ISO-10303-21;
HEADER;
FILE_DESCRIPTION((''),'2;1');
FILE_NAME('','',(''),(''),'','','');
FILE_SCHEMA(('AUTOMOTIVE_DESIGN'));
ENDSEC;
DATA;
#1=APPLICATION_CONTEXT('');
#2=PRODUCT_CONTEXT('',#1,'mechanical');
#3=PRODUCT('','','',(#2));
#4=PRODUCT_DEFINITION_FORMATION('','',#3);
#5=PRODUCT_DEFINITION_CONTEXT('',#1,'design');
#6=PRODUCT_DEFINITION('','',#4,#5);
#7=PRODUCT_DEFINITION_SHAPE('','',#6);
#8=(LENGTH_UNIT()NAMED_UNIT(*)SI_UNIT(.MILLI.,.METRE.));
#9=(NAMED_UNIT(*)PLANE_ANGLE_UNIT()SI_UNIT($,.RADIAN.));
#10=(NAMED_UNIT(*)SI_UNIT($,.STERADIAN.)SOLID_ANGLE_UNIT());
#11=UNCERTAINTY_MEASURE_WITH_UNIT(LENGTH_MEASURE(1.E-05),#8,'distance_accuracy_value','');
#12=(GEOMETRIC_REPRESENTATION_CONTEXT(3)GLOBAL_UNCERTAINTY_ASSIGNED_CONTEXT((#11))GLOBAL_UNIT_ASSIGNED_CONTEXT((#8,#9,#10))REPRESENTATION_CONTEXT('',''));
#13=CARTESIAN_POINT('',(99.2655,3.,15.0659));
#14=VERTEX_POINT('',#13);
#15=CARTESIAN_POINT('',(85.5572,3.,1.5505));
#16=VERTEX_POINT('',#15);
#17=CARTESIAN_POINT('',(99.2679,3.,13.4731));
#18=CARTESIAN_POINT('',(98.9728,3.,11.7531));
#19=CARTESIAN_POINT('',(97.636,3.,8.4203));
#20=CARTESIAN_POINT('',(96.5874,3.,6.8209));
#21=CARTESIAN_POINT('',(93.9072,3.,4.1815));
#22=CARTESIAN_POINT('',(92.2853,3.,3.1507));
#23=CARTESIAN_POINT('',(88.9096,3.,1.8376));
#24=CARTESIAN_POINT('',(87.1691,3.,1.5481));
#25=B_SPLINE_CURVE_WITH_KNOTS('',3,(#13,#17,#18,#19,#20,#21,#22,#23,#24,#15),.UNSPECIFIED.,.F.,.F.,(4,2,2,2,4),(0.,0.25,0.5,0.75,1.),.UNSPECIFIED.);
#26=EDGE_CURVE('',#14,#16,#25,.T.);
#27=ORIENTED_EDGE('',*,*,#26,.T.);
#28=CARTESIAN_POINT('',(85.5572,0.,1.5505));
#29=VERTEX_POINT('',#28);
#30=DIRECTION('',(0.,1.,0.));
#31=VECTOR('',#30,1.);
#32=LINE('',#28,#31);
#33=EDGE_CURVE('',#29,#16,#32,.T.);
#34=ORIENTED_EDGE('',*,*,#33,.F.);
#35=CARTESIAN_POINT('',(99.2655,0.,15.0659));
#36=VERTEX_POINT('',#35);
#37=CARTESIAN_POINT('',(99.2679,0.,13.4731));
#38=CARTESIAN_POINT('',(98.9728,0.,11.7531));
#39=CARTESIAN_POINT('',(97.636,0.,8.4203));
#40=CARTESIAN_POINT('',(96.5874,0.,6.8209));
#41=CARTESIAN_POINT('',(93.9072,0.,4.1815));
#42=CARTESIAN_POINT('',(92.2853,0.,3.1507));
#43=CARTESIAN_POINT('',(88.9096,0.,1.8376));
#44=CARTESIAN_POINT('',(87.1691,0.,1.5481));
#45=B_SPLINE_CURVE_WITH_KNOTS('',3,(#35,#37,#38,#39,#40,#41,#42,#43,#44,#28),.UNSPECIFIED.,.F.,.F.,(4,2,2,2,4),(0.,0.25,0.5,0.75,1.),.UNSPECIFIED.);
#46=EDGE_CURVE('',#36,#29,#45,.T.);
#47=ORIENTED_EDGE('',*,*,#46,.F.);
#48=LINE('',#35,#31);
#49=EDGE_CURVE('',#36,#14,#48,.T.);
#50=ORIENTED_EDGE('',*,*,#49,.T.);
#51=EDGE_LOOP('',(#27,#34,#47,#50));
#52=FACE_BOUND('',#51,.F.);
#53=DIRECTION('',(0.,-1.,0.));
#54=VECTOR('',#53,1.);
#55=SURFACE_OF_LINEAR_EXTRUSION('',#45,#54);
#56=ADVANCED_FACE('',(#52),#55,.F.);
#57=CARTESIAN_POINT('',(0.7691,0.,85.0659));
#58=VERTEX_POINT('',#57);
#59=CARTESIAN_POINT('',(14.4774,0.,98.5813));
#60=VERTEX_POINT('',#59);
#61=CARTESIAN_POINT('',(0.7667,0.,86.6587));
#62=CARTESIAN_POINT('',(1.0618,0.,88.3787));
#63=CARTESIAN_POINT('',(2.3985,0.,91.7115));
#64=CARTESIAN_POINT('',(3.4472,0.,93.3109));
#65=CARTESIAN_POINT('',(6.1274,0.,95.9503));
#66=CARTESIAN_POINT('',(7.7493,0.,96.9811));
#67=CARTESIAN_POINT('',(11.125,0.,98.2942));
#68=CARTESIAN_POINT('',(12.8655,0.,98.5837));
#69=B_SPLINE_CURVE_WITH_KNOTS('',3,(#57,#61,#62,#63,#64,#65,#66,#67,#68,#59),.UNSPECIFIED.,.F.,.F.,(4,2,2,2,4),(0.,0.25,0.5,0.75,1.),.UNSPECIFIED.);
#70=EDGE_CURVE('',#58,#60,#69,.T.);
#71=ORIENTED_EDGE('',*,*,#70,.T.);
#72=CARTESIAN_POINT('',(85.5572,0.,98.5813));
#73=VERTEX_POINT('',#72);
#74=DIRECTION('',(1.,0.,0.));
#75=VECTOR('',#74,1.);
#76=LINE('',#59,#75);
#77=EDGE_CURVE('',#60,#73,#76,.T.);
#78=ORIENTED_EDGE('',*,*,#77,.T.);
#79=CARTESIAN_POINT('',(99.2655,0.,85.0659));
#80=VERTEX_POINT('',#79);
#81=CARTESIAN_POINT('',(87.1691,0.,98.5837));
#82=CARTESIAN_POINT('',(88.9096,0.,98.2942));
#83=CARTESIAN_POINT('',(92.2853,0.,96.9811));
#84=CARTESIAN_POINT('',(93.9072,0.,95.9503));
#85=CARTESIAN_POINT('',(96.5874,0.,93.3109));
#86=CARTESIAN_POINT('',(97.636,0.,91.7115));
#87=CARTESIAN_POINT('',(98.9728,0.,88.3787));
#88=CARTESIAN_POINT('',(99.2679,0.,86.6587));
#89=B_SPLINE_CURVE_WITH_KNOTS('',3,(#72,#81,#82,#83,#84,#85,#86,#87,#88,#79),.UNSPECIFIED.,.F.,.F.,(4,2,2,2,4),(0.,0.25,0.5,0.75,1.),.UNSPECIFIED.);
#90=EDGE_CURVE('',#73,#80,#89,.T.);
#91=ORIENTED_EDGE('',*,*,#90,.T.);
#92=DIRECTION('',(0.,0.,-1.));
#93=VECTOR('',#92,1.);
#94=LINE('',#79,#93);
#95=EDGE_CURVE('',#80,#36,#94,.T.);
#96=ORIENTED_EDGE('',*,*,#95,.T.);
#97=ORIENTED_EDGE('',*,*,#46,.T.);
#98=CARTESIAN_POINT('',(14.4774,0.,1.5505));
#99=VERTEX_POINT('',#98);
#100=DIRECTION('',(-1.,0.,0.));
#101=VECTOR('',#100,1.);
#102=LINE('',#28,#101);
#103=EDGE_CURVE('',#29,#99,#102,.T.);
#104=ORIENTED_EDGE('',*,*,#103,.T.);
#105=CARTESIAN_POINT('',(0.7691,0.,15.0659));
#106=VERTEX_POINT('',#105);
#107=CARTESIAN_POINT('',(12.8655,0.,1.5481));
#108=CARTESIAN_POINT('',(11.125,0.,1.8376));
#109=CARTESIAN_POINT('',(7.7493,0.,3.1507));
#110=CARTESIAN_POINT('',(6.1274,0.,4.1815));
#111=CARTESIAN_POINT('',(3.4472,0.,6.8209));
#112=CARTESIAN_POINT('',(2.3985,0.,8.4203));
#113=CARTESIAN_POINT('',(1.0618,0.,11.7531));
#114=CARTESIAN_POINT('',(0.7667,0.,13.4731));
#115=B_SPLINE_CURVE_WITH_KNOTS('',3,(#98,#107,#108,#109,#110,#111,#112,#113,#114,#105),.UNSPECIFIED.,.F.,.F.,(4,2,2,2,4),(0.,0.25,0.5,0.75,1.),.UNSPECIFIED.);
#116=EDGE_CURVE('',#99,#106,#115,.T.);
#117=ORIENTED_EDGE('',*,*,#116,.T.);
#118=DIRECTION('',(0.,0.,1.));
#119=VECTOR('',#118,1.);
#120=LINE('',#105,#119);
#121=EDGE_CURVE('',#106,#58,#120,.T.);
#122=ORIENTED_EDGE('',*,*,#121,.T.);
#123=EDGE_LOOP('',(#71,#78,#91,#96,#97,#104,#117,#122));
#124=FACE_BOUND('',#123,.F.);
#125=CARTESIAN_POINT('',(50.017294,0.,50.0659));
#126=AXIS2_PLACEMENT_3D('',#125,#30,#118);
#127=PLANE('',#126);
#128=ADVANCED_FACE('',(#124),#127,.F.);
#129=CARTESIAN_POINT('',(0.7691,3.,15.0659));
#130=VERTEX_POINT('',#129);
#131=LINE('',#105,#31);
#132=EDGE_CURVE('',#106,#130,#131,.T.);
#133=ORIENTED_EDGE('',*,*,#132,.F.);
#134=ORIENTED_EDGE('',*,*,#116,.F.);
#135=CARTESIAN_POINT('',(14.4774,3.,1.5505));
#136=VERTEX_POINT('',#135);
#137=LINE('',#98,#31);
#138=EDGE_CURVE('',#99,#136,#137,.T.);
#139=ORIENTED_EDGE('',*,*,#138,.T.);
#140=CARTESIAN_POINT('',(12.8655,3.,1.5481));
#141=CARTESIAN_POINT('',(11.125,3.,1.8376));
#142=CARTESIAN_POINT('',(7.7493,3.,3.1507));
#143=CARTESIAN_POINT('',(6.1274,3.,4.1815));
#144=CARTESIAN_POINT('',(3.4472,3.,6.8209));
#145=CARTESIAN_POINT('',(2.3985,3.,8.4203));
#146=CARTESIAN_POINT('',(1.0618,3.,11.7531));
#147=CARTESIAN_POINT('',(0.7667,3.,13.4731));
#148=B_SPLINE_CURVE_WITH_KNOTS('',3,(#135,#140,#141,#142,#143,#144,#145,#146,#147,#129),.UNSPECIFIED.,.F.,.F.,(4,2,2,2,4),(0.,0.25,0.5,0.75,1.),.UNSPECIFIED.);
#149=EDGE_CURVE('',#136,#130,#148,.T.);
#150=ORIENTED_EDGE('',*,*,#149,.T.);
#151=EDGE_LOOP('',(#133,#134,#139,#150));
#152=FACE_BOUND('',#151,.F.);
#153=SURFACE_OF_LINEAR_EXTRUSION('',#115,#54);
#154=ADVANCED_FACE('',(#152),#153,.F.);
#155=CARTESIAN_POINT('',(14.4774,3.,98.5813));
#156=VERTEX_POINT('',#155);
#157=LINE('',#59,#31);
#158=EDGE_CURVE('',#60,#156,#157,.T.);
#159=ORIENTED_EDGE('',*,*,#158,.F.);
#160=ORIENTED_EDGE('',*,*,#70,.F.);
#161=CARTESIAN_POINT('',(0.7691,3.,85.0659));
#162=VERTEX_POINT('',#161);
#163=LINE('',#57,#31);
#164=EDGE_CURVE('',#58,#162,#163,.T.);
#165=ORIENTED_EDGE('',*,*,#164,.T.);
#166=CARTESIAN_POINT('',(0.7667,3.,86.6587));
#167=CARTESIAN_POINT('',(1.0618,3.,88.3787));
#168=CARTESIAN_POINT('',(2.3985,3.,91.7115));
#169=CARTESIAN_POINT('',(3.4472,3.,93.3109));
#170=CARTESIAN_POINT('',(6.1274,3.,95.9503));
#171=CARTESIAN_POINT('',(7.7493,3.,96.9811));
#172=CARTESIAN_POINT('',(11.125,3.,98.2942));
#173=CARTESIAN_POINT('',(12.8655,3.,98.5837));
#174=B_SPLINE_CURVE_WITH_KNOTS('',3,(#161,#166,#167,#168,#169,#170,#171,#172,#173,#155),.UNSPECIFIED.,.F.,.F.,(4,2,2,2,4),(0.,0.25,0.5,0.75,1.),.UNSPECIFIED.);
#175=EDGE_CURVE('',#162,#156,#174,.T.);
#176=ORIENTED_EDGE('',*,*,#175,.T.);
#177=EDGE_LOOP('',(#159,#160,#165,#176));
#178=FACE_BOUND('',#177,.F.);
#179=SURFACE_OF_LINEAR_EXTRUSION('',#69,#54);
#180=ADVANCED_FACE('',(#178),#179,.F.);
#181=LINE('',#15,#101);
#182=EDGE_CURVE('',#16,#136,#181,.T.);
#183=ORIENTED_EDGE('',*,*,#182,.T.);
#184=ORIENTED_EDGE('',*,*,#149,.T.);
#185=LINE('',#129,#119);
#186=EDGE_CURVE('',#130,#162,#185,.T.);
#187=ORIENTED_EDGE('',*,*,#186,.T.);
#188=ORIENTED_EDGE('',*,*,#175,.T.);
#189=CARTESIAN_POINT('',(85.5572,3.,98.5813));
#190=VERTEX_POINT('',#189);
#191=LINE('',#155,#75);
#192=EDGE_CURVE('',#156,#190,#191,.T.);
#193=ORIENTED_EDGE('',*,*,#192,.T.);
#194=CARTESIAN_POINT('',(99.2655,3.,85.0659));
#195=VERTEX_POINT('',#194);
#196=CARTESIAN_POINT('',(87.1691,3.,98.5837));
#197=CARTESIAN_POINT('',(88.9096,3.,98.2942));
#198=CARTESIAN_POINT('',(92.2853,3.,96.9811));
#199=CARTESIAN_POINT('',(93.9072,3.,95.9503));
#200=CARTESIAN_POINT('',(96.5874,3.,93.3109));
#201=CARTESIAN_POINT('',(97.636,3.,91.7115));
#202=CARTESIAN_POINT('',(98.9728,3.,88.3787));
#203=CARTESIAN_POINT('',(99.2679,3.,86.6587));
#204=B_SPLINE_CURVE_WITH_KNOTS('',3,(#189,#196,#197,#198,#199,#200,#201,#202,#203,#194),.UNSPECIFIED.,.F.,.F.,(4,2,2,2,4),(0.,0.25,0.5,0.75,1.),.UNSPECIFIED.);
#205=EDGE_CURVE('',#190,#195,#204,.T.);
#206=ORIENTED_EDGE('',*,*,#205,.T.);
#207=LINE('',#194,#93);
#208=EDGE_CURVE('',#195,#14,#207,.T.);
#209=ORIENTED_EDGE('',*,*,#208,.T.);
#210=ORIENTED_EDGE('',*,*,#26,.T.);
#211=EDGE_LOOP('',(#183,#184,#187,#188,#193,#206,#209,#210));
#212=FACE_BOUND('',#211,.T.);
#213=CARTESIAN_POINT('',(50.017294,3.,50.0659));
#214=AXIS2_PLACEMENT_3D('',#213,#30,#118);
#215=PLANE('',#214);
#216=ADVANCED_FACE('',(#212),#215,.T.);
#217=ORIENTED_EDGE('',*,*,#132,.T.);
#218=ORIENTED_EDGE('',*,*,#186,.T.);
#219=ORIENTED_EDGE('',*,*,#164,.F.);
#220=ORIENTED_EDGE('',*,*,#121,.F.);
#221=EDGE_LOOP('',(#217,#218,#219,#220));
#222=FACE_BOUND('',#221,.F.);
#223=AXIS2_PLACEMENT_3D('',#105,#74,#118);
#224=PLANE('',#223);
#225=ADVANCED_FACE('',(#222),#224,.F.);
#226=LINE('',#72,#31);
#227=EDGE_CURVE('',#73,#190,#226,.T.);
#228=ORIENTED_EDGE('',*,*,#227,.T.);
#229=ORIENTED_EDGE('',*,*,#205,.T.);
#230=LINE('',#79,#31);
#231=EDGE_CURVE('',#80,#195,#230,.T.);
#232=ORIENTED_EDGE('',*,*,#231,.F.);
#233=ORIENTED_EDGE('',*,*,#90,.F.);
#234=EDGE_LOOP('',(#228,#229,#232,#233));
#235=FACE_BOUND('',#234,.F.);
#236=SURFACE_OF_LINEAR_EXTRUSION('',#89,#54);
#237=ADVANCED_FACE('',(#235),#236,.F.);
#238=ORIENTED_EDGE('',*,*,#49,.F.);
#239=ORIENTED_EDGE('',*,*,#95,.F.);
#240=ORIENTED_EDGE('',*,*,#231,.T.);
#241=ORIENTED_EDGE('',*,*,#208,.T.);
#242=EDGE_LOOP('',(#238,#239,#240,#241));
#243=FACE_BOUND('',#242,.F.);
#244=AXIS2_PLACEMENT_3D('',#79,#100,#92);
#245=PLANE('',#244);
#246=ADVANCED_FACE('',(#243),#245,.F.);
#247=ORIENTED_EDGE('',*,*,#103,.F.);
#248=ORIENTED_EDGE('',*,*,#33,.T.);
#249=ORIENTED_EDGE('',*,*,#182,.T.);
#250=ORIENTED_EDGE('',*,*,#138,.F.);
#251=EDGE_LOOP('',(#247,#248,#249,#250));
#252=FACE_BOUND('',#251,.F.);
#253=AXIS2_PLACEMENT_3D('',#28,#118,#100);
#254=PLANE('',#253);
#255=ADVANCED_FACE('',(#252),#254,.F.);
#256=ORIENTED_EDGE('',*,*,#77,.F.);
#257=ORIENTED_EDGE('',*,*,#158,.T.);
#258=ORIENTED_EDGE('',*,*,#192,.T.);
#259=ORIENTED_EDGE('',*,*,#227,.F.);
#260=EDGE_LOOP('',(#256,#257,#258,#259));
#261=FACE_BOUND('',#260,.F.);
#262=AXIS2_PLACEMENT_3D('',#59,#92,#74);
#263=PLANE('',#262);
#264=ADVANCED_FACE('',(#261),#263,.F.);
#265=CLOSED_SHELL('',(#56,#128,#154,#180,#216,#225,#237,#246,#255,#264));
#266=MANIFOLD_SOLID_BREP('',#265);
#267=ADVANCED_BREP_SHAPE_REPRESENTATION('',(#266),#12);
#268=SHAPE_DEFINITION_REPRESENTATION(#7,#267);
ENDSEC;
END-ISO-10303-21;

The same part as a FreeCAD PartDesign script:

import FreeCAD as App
import Part
import Sketcher

doc = App.newDocument("Part")
body = doc.addObject("PartDesign::Body", "Body")

sketch1 = doc.addObject("Sketcher::SketchObject", "Sketch")
body.addObject(sketch1)
sketch1.AttachmentSupport = (doc.XZ_Plane, [""])
sketch1.MapMode = "FlatFace"
sketch1.addGeometry([
    Part.LineSegment(App.Vector(85.5572, 98.5813, 0), App.Vector(14.4774, 98.5813, 0)),
    Part.BSplineCurve([App.Vector(0.7691, 85.0659, 0), App.Vector(0.7667, 86.6587, 0), App.Vector(1.0618, 88.3787, 0), App.Vector(2.3985, 91.7115, 0), App.Vector(3.4472, 93.3109, 0), App.Vector(6.1274, 95.9503, 0), App.Vector(7.7493, 96.9811, 0), App.Vector(11.125, 98.2942, 0), App.Vector(12.8655, 98.5837, 0), App.Vector(14.4774, 98.5813, 0)], [4, 2, 2, 2, 4], [0, 0.25, 0.5, 0.75, 1], False, 3, [1, 1, 1, 1, 1, 1, 1, 1, 1, 1], False),
    Part.LineSegment(App.Vector(0.7691, 85.0659, 0), App.Vector(0.7691, 15.0659, 0)),
    Part.BSplineCurve([App.Vector(14.4774, 1.5505, 0), App.Vector(12.8655, 1.5481, 0), App.Vector(11.125, 1.8376, 0), App.Vector(7.7493, 3.1507, 0), App.Vector(6.1274, 4.1815, 0), App.Vector(3.4472, 6.8209, 0), App.Vector(2.3985, 8.4203, 0), App.Vector(1.0618, 11.7531, 0), App.Vector(0.7667, 13.4731, 0), App.Vector(0.7691, 15.0659, 0)], [4, 2, 2, 2, 4], [0, 0.25, 0.5, 0.75, 1], False, 3, [1, 1, 1, 1, 1, 1, 1, 1, 1, 1], False),
    Part.LineSegment(App.Vector(14.4774, 1.5505, 0), App.Vector(85.5572, 1.5505, 0)),
    Part.BSplineCurve([App.Vector(99.2655, 15.0659, 0), App.Vector(99.2679, 13.4731, 0), App.Vector(98.9728, 11.7531, 0), App.Vector(97.636, 8.4203, 0), App.Vector(96.5874, 6.8209, 0), App.Vector(93.9072, 4.1815, 0), App.Vector(92.2853, 3.1507, 0), App.Vector(88.9096, 1.8376, 0), App.Vector(87.1691, 1.5481, 0), App.Vector(85.5572, 1.5505, 0)], [4, 2, 2, 2, 4], [0, 0.25, 0.5, 0.75, 1], False, 3, [1, 1, 1, 1, 1, 1, 1, 1, 1, 1], False),
    Part.LineSegment(App.Vector(99.2655, 15.0659, 0), App.Vector(99.2655, 85.0659, 0)),
    Part.BSplineCurve([App.Vector(85.5572, 98.5813, 0), App.Vector(87.1691, 98.5837, 0), App.Vector(88.9096, 98.2942, 0), App.Vector(92.2853, 96.9811, 0), App.Vector(93.9072, 95.9503, 0), App.Vector(96.5874, 93.3109, 0), App.Vector(97.636, 91.7115, 0), App.Vector(98.9728, 88.3787, 0), App.Vector(99.2679, 86.6587, 0), App.Vector(99.2655, 85.0659, 0)], [4, 2, 2, 2, 4], [0, 0.25, 0.5, 0.75, 1], False, 3, [1, 1, 1, 1, 1, 1, 1, 1, 1, 1], False),
], False)
sketch1.addConstraint([
    Sketcher.Constraint("Block", 1),
    Sketcher.Constraint("Block", 3),
    Sketcher.Constraint("Block", 5),
    Sketcher.Constraint("Block", 7),
    Sketcher.Constraint("Coincident", 0, 2, 1, 2),
    Sketcher.Constraint("Coincident", 1, 1, 2, 1),
    Sketcher.Constraint("Coincident", 2, 2, 3, 2),
    Sketcher.Constraint("Coincident", 3, 1, 4, 1),
    Sketcher.Constraint("Coincident", 4, 2, 5, 2),
    Sketcher.Constraint("Coincident", 5, 1, 6, 1),
    Sketcher.Constraint("Coincident", 6, 2, 7, 2),
    Sketcher.Constraint("Coincident", 7, 1, 0, 1),
])
pad1 = doc.addObject("PartDesign::Pad", "Pad")
body.addObject(pad1)
pad1.Profile = sketch1
pad1.Length = 3
pad1.Reversed = True

doc.recompute()
